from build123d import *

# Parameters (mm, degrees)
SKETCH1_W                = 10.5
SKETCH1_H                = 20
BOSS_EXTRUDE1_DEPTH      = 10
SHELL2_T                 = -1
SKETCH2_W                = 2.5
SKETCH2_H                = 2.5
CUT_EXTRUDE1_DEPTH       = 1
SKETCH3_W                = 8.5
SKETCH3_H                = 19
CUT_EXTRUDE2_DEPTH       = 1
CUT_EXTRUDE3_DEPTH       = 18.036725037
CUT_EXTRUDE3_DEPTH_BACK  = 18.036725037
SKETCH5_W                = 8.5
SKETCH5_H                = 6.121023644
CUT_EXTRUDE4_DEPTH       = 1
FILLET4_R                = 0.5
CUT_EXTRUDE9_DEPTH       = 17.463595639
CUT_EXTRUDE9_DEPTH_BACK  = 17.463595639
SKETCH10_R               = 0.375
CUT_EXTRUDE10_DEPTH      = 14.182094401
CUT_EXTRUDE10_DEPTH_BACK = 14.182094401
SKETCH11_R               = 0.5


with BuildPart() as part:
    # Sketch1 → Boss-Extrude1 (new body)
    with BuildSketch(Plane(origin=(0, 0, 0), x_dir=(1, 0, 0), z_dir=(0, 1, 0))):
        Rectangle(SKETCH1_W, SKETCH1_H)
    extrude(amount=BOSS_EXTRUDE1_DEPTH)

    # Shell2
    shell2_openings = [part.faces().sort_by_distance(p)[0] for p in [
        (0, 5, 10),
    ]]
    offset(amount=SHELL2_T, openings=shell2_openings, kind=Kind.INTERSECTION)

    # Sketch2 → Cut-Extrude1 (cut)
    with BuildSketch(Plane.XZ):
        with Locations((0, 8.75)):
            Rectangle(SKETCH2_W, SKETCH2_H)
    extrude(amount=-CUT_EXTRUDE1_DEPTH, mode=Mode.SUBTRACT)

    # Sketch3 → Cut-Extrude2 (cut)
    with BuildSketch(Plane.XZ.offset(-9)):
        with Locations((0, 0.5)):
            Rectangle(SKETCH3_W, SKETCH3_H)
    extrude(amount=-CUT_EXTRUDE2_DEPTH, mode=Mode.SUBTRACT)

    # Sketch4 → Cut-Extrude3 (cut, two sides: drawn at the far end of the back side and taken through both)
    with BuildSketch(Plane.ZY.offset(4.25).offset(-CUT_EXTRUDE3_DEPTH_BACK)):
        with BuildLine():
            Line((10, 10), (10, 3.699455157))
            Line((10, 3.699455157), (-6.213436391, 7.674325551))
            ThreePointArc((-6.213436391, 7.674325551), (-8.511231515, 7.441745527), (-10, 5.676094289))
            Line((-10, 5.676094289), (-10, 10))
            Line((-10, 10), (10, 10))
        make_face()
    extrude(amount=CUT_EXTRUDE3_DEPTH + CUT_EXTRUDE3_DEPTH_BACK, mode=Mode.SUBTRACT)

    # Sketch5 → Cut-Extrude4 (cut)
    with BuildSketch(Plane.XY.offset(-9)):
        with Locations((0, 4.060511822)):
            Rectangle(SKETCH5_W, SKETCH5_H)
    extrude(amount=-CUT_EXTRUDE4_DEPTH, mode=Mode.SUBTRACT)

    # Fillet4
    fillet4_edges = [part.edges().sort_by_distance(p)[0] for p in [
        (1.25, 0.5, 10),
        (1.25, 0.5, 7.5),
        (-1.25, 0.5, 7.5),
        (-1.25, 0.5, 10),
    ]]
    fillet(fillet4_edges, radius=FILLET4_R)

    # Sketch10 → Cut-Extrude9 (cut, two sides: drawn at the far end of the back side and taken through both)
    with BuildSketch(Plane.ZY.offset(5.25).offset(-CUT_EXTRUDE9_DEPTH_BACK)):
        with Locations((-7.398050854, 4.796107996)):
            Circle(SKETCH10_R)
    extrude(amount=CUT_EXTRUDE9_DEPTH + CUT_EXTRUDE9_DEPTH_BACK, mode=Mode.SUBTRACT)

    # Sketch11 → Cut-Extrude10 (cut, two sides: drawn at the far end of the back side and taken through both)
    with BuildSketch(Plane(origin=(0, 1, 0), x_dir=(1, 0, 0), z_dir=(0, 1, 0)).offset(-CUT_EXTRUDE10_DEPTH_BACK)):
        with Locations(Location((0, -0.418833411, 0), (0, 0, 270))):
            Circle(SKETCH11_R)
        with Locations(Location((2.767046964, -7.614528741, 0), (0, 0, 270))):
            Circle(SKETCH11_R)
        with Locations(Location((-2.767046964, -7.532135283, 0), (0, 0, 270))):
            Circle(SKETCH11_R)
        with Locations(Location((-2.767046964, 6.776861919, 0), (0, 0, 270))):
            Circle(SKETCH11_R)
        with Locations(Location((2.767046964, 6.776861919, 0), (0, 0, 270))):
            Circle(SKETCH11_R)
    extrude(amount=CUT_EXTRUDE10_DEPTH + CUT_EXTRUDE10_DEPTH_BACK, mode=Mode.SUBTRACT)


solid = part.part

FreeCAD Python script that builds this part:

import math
import FreeCAD as App
import Part
import Sketcher
from FreeCAD import Vector


def edges_at(feature, points):
    """Names of the edges that pass closest to the given points."""
    edges = feature.Shape.Edges
    near = lambda p: min(range(len(edges)), key=lambda i: edges[i].distToShape(Part.Vertex(*p))[0])
    return sorted({f"Edge{near(p) + 1}" for p in points})


def faces_at(feature, points):
    """Names of the faces that lie closest to the given points."""
    faces = feature.Shape.Faces
    near = lambda p: min(range(len(faces)), key=lambda i: faces[i].distToShape(Part.Vertex(*p))[0])
    return sorted({f"Face{near(p) + 1}" for p in points})

doc = App.newDocument("Part")
body = doc.addObject("PartDesign::Body", "Body")

# Sketch on XZ plane
sketch1 = body.newObject("Sketcher::SketchObject", "Sketch")
sketch1.AttachmentSupport = (doc.getObject("XZ_Plane"), [""])
sketch1.MapMode = "FlatFace"
sketch1.addGeometry([
    Part.LineSegment(Vector(-5, -10, 0), Vector(-5, 10, 0)),
    Part.LineSegment(Vector(-5, 10, 0), Vector(5, 10, 0)),
    Part.LineSegment(Vector(5, 10, 0), Vector(5, -10, 0)),
    Part.LineSegment(Vector(5, -10, 0), Vector(-5, -10, 0)),
], False)
sketch1.addConstraint([
    Sketcher.Constraint("Coincident", 0, 2, 1, 1),
    Sketcher.Constraint("Coincident", 1, 2, 2, 1),
    Sketcher.Constraint("Coincident", 2, 2, 3, 1),
    Sketcher.Constraint("Coincident", 3, 2, 0, 1),
    Sketcher.Constraint("Vertical", 0),
    Sketcher.Constraint("Horizontal", 1),
    Sketcher.Constraint("Vertical", 2),
    Sketcher.Constraint("Horizontal", 3),
    Sketcher.Constraint("Symmetric", 0, 2, 2, 2, -1, 1),
    Sketcher.Constraint("DistanceY", 0, 1, 0, 2, 20.0),
    Sketcher.Constraint("DistanceX", 1, 1, 1, 2, 10.5),
])
pad1 = body.newObject("PartDesign::Pad", "Pad")
pad1.Profile = sketch1
pad1.Length = 10
pad1.Reversed = True
doc.recompute()

thickness = body.newObject("PartDesign::Thickness", "Thickness")
thickness.Base = (pad1, faces_at(pad1, [(0, 5, 10)]))
thickness.Value = 1
thickness.Reversed = True
thickness.Join = "Intersection"

# Sketch on XZ plane
sketch2 = body.newObject("Sketcher::SketchObject", "Sketch001")
sketch2.AttachmentSupport = (doc.getObject("XZ_Plane"), [""])
sketch2.MapMode = "FlatFace"
sketch2.addGeometry([
    Part.LineSegment(Vector(-1.2, 10, 0), Vector(-1.2, 7.5, 0)),
    Part.LineSegment(Vector(-1.2, 7.5, 0), Vector(1.2, 7.5, 0)),
    Part.LineSegment(Vector(1.2, 7.5, 0), Vector(1.2, 10, 0)),
    Part.LineSegment(Vector(1.2, 10, 0), Vector(-1.2, 10, 0)),
], False)
sketch2.addConstraint([
    Sketcher.Constraint("Coincident", 0, 2, 1, 1),
    Sketcher.Constraint("Coincident", 1, 2, 2, 1),
    Sketcher.Constraint("Coincident", 2, 2, 3, 1),
    Sketcher.Constraint("Coincident", 3, 2, 0, 1),
    Sketcher.Constraint("Vertical", 0),
    Sketcher.Constraint("Horizontal", 1),
    Sketcher.Constraint("Vertical", 2),
    Sketcher.Constraint("Horizontal", 3),
    Sketcher.Constraint("Equal", 3, 0),
    Sketcher.Constraint("DistanceX", 1, 1, 1, 2, 2.5),
    Sketcher.Constraint("DistanceY", -1, 1, 2, 2, 10.0),
    Sketcher.Constraint("DistanceX", 0, 2, -1, 1, 1.25),
])
pocket1 = body.newObject("PartDesign::Pocket", "Pocket")
pocket1.Profile = sketch2
pocket1.Length = 1

# Sketch on XZ plane
sketch3 = body.newObject("Sketcher::SketchObject", "Sketch002")
sketch3.AttachmentSupport = (doc.getObject("XZ_Plane"), [""])
sketch3.MapMode = "FlatFace"
sketch3.AttachmentOffset = App.Placement(Vector(0, 0, -9), App.Rotation())
sketch3.addGeometry([
    Part.LineSegment(Vector(-4, 10, 0), Vector(-4, -9, 0)),
    Part.LineSegment(Vector(-4, -9, 0), Vector(4, -9, 0)),
    Part.LineSegment(Vector(4, -9, 0), Vector(4, 10, 0)),
    Part.LineSegment(Vector(4, 10, 0), Vector(-4, 10, 0)),
], False)
sketch3.addConstraint([
    Sketcher.Constraint("Coincident", 0, 2, 1, 1),
    Sketcher.Constraint("Coincident", 1, 2, 2, 1),
    Sketcher.Constraint("Coincident", 2, 2, 3, 1),
    Sketcher.Constraint("Coincident", 3, 2, 0, 1),
    Sketcher.Constraint("Vertical", 0),
    Sketcher.Constraint("Horizontal", 1),
    Sketcher.Constraint("Vertical", 2),
    Sketcher.Constraint("Horizontal", 3),
    Sketcher.Constraint("DistanceY", 0, 2, 0, 1, 19.0),
    Sketcher.Constraint("DistanceX", 1, 1, 1, 2, 8.5),
    Sketcher.Constraint("DistanceY", 0, 2, -1, 1, 9.0),
    Sketcher.Constraint("DistanceX", 0, 2, -1, 1, 4.25),
])
pocket2 = body.newObject("PartDesign::Pocket", "Pocket001")
pocket2.Profile = sketch3
pocket2.Length = 1

# Sketch on YZ plane
sketch4 = body.newObject("Sketcher::SketchObject", "Sketch003")
sketch4.AttachmentSupport = (doc.getObject("YZ_Plane"), [""])
sketch4.MapMode = "FlatFace"
sketch4.AttachmentOffset = App.Placement(Vector(0, 0, -4.25), App.Rotation())
sketch4.addGeometry([
    Part.LineSegment(Vector(3.7, 10, 0), Vector(10, 10, 0)),  # 0
    Part.LineSegment(Vector(10, 10, 0), Vector(10, -10, 0)),  # 1
    Part.LineSegment(Vector(10, -10, 0), Vector(5.7, -10, 0)),  # 2
    Part.ArcOfCircle(Part.Circle(Vector(4.7, -7.1, 0), Vector(0, 0, 1), 3.1), math.radians(-72), math.radians(16)),  # 3
    Part.LineSegment(Vector(7.7, -6.2, 0), Vector(3.7, 10, 0)),  # 4
], False)
sketch4.addConstraint([
    Sketcher.Constraint("Coincident", 0, 2, 1, 1),
    Sketcher.Constraint("Coincident", 1, 2, 2, 1),
    Sketcher.Constraint("Coincident", 2, 2, 3, 1),
    Sketcher.Constraint("Coincident", 3, 2, 4, 1),
    Sketcher.Constraint("Coincident", 4, 2, 0, 1),
    Sketcher.Constraint("Horizontal", 0),
    Sketcher.Constraint("Vertical", 1),
    Sketcher.Constraint("Horizontal", 2),
    Sketcher.Constraint("DistanceY", 1, 2, 1, 1, 20.0),
    Sketcher.Constraint("DistanceX", -1, 1, 0, 2, 10.0),
    Sketcher.Constraint("DistanceY", -1, 1, 0, 2, 10.0),
    Sketcher.Constraint("Radius", 3, 3.077084),
    Sketcher.Constraint("DistanceX", 0, 1, 0, 2, 6.300545),
    Sketcher.Constraint("DistanceX", 2, 2, 2, 1, 4.323906),
    Sketcher.Constraint("DistanceX", -1, 1, 3, 3, 4.72035),
    Sketcher.Constraint("DistanceY", 3, 3, 3, 2, 0.861671),
])
pocket3 = body.newObject("PartDesign::Pocket", "Pocket002")
pocket3.Profile = sketch4
pocket3.Type = "ThroughAll"
pocket3.Midplane = True

# Sketch on XY plane
sketch5 = body.newObject("Sketcher::SketchObject", "Sketch004")
sketch5.AttachmentSupport = (doc.getObject("XY_Plane"), [""])
sketch5.MapMode = "FlatFace"
sketch5.AttachmentOffset = App.Placement(Vector(0, 0, -9), App.Rotation())
sketch5.addGeometry([
    Part.LineSegment(Vector(-4, 7, 0), Vector(-4, 1, 0)),
    Part.LineSegment(Vector(-4, 1, 0), Vector(4, 1, 0)),
    Part.LineSegment(Vector(4, 1, 0), Vector(4, 7, 0)),
    Part.LineSegment(Vector(4, 7, 0), Vector(-4, 7, 0)),
], False)
sketch5.addConstraint([
    Sketcher.Constraint("Coincident", 0, 2, 1, 1),
    Sketcher.Constraint("Coincident", 1, 2, 2, 1),
    Sketcher.Constraint("Coincident", 2, 2, 3, 1),
    Sketcher.Constraint("Coincident", 3, 2, 0, 1),
    Sketcher.Constraint("Vertical", 0),
    Sketcher.Constraint("Horizontal", 1),
    Sketcher.Constraint("Vertical", 2),
    Sketcher.Constraint("Horizontal", 3),
    Sketcher.Constraint("DistanceX", 1, 1, 1, 2, 8.5),
    Sketcher.Constraint("DistanceY", -1, 1, 0, 2, 1.0),
    Sketcher.Constraint("DistanceX", 0, 2, -1, 1, 4.25),
    Sketcher.Constraint("DistanceY", 0, 2, 0, 1, 6.121024),
])
pocket4 = body.newObject("PartDesign::Pocket", "Pocket003")
pocket4.Profile = sketch5
pocket4.Length = 1
doc.recompute()

fillet = body.newObject("PartDesign::Fillet", "Fillet")
fillet.Base = (pocket4, edges_at(pocket4, [
    (1.25, 0.5, 10),
    (1.25, 0.5, 7.5),
    (-1.25, 0.5, 7.5),
    (-1.25, 0.5, 10),
]))
fillet.Radius = 0.5

# Sketch on YZ plane
sketch6 = body.newObject("Sketcher::SketchObject", "Sketch005")
sketch6.AttachmentSupport = (doc.getObject("YZ_Plane"), [""])
sketch6.MapMode = "FlatFace"
sketch6.AttachmentOffset = App.Placement(Vector(0, 0, -5.25), App.Rotation())
sketch6.addGeometry(Part.Circle(Vector(4.8, -7.4, 0), Vector(0, 0, 1), 0.38), False)
sketch6.addConstraint([
    Sketcher.Constraint("Diameter", 0, 0.75),
    Sketcher.Constraint("DistanceY", 0, 3, -1, 1, 7.398051),
    Sketcher.Constraint("DistanceX", -1, 1, 0, 3, 4.796108),
])
pocket5 = body.newObject("PartDesign::Pocket", "Pocket004")
pocket5.Profile = sketch6
pocket5.Type = "ThroughAll"
pocket5.Midplane = True

# Sketch on XZ plane
sketch7 = body.newObject("Sketcher::SketchObject", "Sketch006")
sketch7.AttachmentSupport = (doc.getObject("XZ_Plane"), [""])
sketch7.MapMode = "FlatFace"
sketch7.AttachmentOffset = App.Placement(Vector(0, 0, -1), App.Rotation())
sketch7.addGeometry([
    Part.Circle(Vector(0, 0.4, 0), Vector(0, 0, 1), 0.5),  # 0
    Part.Circle(Vector(2.8, 7.6, 0), Vector(0, 0, 1), 0.5),  # 1
    Part.Circle(Vector(-2.8, 7.5, 0), Vector(0, 0, 1), 0.5),  # 2
    Part.Circle(Vector(-2.8, -6.8, 0), Vector(0, 0, 1), 0.5),  # 3
    Part.Circle(Vector(2.8, -6.8, 0), Vector(0, 0, 1), 0.5),  # 4
], False)
sketch7.addConstraint([
    Sketcher.Constraint("Equal", 0, 1),
    Sketcher.Constraint("Equal", 1, 2),
    Sketcher.Constraint("Equal", 2, 3),
    Sketcher.Constraint("Equal", 3, 4),
    Sketcher.Constraint("Symmetric", 3, 3, 4, 3, -2),
    Sketcher.Constraint("PointOnObject", 0, 3, -2),
    Sketcher.Constraint("Vertical", 2, 3, 3, 3),
    Sketcher.Constraint("Vertical", 1, 3, 4, 3),
    Sketcher.Constraint("Diameter", 0, 1.0),
    Sketcher.Constraint("DistanceY", 0, 3, 2, 3, 7.113302),
    Sketcher.Constraint("DistanceY", -1, 1, 1, 3, 7.614529),
    Sketcher.Constraint("DistanceY", 3, 3, -1, 1, 6.776862),
    Sketcher.Constraint("DistanceY", -1, 1, 0, 3, 0.418833),
    Sketcher.Constraint("DistanceX", -1, 1, 1, 3, 2.767047),
])
pocket6 = body.newObject("PartDesign::Pocket", "Pocket005")
pocket6.Profile = sketch7
pocket6.Type = "ThroughAll"
pocket6.Midplane = True

doc.recompute()
